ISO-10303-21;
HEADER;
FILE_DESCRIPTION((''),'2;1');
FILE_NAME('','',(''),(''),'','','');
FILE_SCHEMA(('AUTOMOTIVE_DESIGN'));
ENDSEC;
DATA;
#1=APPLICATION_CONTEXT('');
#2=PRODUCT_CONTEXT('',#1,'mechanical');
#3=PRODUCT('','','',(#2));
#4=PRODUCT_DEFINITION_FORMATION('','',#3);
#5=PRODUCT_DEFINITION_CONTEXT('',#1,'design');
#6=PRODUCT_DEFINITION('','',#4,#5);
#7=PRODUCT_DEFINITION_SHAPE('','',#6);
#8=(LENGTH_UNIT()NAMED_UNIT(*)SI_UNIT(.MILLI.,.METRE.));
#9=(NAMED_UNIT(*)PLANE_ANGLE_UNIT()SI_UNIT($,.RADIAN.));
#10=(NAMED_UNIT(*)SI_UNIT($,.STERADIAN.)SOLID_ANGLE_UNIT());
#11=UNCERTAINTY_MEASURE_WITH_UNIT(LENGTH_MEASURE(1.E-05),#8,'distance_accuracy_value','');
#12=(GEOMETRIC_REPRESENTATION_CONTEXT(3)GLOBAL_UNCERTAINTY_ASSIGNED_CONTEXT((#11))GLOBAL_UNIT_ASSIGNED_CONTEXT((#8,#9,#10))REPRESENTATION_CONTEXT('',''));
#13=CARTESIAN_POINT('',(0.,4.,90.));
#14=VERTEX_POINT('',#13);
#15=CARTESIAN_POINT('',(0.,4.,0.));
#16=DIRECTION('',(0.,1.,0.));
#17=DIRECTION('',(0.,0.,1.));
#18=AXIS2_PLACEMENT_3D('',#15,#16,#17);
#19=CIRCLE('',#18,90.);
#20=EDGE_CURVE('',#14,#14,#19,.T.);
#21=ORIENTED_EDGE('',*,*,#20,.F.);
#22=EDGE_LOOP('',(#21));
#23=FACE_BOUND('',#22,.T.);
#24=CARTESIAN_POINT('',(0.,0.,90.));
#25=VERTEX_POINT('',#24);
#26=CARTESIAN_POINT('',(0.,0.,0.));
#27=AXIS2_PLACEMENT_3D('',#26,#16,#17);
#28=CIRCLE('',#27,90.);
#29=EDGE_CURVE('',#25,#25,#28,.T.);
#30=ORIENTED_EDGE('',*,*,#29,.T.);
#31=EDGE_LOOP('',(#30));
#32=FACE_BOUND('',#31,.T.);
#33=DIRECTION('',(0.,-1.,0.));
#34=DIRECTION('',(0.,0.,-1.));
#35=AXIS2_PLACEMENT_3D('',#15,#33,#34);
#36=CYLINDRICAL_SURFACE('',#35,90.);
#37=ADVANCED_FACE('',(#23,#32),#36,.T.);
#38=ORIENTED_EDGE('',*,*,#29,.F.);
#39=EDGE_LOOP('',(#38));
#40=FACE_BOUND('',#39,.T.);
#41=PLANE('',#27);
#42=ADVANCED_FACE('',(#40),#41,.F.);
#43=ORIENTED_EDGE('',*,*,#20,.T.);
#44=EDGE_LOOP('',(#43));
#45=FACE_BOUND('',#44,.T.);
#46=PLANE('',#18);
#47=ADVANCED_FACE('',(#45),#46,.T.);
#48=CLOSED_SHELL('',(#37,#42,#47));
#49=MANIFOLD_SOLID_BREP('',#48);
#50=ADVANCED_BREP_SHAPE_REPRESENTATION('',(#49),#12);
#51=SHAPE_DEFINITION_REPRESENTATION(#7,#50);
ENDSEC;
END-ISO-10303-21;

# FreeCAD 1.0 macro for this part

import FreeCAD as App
import Part
import Sketcher

V = App.Vector
Q = App.Units.Quantity

doc = App.newDocument("Part")
body = doc.addObject("PartDesign::Body", "Body")

# Sketch on XZ plane
sketch1 = body.newObject("Sketcher::SketchObject", "Sketch")
sketch1.AttachmentSupport = (doc.getObject("XZ_Plane"), [""])
sketch1.MapMode = "FlatFace"
sketch1.addGeometry(Part.Circle(V(0, 0, 0), V(0, 0, 1), 90), False)
sketch1.addConstraint(Sketcher.Constraint("Coincident", 0, 3, -1, 1))
sketch1.addConstraint(Sketcher.Constraint("Diameter", 0, Q("180 mm")))
pad1 = body.newObject("PartDesign::Pad", "Pad")
pad1.Profile = sketch1
pad1.Length = 4
pad1.Reversed = True

doc.recompute()
